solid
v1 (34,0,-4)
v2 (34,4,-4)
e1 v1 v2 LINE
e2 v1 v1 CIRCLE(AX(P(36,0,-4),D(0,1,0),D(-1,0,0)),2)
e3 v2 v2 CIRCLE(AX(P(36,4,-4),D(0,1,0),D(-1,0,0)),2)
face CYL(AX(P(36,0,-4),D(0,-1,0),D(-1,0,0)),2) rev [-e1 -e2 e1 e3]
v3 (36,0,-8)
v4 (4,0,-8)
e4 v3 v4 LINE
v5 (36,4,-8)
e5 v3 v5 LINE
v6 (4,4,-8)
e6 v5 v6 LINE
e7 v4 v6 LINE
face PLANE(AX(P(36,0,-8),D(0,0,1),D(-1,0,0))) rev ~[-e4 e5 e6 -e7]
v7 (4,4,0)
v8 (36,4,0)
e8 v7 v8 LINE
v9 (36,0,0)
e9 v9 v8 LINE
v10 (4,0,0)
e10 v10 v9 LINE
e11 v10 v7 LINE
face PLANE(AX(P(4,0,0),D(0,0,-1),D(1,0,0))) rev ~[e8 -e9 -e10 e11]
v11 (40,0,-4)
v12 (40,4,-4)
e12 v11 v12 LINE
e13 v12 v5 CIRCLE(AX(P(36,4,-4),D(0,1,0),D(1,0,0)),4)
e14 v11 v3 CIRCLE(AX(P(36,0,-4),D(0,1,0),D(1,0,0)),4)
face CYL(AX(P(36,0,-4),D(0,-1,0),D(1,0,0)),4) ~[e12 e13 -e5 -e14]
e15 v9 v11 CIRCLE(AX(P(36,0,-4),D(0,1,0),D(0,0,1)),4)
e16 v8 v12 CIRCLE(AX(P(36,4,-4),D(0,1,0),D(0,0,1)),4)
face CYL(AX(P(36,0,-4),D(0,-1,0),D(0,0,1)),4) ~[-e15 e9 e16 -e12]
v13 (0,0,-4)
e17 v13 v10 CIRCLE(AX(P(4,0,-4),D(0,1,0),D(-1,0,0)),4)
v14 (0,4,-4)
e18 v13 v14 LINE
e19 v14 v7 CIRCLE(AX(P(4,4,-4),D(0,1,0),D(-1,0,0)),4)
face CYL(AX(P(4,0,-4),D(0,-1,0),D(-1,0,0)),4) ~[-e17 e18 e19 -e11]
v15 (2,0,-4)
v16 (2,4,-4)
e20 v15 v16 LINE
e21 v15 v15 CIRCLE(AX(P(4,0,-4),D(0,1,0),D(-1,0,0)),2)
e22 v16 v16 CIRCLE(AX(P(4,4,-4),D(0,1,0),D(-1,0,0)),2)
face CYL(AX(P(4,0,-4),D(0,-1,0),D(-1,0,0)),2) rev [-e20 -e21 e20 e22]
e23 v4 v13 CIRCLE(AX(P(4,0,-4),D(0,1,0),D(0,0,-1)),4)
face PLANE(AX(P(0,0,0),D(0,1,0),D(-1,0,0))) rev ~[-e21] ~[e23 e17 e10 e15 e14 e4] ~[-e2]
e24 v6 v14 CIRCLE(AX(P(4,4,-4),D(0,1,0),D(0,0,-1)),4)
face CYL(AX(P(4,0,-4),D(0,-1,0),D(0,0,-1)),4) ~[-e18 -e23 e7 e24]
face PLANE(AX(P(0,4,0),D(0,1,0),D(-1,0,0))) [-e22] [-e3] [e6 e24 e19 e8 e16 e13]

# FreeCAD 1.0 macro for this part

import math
import FreeCAD as App
import Part
import Sketcher
from FreeCAD import Vector

doc = App.newDocument("Part")
params = doc.addObject("Spreadsheet::Sheet", "Params")
for row, (alias, value) in enumerate([
    ("sketch1_diameter", "4 mm"),
    ("sketch1_radius", "4 mm"),
    ("sketch1_width", "32 mm"),
    ("pad1_length", "4 mm"),
], start=1):
    params.set(f"A{row}", alias)
    params.set(f"B{row}", "=" + value)
    params.setAlias(f"B{row}", alias)

body = doc.addObject("PartDesign::Body", "Body")

# Sketch on XZ plane
sketch1 = doc.addObject("Sketcher::SketchObject", "Sketch")
body.addObject(sketch1)
sketch1.AttachmentSupport = (doc.XZ_Plane, [""])
sketch1.MapMode = "FlatFace"
sketch1.addGeometry([
    Part.ArcOfCircle(Part.Circle(Vector(4, -4, 0), Vector(0, 0, 1), 4), math.radians(90), math.radians(270)),  # 0
    Part.LineSegment(Vector(4, 0, 0), Vector(36, 0, 0)),  # 1
    Part.ArcOfCircle(Part.Circle(Vector(36, -4, 0), Vector(0, 0, 1), 4), math.radians(-90), math.radians(90)),  # 2
    Part.LineSegment(Vector(36, -8, 0), Vector(4, -8, 0)),  # 3
    Part.Circle(Vector(36, -4, 0), Vector(0, 0, 1), 2),  # 4
    Part.Circle(Vector(4, -4, 0), Vector(0, 0, 1), 2),  # 5
], False)
sketch1.addConstraint([
    Sketcher.Constraint("Tangent", 0, 1, 1, 1),
    Sketcher.Constraint("Tangent", 1, 2, 2, 2),
    Sketcher.Constraint("Tangent", 2, 1, 3, 1),
    Sketcher.Constraint("Tangent", 3, 2, 0, 2),
    Sketcher.Constraint("Horizontal", 1),
    Sketcher.Constraint("Horizontal", 3),
    Sketcher.Constraint("Coincident", 4, 3, 2, 3),
    Sketcher.Constraint("Coincident", 5, 3, 0, 3),
    Sketcher.Constraint("Equal", 4, 5),
    Sketcher.Constraint("PointOnObject", 0, 1, -1),
    Sketcher.Constraint("Diameter", 4, 4.0),
    Sketcher.Constraint("Radius", 0, 4.0),
    Sketcher.Constraint("DistanceX", -1, 1, 0, 3, 4.0),
    Sketcher.Constraint("DistanceX", 1, 1, 1, 2, 32.0),
])
sketch1.setExpression("Constraints[10]", "Params.sketch1_diameter")
sketch1.setExpression("Constraints[11]", "Params.sketch1_radius")
sketch1.setExpression("Constraints[13]", "Params.sketch1_width")
pad1 = doc.addObject("PartDesign::Pad", "Pad")
body.addObject(pad1)
pad1.Profile = sketch1
pad1.setExpression("Length", "Params.pad1_length")
pad1.Reversed = True

doc.recompute()
